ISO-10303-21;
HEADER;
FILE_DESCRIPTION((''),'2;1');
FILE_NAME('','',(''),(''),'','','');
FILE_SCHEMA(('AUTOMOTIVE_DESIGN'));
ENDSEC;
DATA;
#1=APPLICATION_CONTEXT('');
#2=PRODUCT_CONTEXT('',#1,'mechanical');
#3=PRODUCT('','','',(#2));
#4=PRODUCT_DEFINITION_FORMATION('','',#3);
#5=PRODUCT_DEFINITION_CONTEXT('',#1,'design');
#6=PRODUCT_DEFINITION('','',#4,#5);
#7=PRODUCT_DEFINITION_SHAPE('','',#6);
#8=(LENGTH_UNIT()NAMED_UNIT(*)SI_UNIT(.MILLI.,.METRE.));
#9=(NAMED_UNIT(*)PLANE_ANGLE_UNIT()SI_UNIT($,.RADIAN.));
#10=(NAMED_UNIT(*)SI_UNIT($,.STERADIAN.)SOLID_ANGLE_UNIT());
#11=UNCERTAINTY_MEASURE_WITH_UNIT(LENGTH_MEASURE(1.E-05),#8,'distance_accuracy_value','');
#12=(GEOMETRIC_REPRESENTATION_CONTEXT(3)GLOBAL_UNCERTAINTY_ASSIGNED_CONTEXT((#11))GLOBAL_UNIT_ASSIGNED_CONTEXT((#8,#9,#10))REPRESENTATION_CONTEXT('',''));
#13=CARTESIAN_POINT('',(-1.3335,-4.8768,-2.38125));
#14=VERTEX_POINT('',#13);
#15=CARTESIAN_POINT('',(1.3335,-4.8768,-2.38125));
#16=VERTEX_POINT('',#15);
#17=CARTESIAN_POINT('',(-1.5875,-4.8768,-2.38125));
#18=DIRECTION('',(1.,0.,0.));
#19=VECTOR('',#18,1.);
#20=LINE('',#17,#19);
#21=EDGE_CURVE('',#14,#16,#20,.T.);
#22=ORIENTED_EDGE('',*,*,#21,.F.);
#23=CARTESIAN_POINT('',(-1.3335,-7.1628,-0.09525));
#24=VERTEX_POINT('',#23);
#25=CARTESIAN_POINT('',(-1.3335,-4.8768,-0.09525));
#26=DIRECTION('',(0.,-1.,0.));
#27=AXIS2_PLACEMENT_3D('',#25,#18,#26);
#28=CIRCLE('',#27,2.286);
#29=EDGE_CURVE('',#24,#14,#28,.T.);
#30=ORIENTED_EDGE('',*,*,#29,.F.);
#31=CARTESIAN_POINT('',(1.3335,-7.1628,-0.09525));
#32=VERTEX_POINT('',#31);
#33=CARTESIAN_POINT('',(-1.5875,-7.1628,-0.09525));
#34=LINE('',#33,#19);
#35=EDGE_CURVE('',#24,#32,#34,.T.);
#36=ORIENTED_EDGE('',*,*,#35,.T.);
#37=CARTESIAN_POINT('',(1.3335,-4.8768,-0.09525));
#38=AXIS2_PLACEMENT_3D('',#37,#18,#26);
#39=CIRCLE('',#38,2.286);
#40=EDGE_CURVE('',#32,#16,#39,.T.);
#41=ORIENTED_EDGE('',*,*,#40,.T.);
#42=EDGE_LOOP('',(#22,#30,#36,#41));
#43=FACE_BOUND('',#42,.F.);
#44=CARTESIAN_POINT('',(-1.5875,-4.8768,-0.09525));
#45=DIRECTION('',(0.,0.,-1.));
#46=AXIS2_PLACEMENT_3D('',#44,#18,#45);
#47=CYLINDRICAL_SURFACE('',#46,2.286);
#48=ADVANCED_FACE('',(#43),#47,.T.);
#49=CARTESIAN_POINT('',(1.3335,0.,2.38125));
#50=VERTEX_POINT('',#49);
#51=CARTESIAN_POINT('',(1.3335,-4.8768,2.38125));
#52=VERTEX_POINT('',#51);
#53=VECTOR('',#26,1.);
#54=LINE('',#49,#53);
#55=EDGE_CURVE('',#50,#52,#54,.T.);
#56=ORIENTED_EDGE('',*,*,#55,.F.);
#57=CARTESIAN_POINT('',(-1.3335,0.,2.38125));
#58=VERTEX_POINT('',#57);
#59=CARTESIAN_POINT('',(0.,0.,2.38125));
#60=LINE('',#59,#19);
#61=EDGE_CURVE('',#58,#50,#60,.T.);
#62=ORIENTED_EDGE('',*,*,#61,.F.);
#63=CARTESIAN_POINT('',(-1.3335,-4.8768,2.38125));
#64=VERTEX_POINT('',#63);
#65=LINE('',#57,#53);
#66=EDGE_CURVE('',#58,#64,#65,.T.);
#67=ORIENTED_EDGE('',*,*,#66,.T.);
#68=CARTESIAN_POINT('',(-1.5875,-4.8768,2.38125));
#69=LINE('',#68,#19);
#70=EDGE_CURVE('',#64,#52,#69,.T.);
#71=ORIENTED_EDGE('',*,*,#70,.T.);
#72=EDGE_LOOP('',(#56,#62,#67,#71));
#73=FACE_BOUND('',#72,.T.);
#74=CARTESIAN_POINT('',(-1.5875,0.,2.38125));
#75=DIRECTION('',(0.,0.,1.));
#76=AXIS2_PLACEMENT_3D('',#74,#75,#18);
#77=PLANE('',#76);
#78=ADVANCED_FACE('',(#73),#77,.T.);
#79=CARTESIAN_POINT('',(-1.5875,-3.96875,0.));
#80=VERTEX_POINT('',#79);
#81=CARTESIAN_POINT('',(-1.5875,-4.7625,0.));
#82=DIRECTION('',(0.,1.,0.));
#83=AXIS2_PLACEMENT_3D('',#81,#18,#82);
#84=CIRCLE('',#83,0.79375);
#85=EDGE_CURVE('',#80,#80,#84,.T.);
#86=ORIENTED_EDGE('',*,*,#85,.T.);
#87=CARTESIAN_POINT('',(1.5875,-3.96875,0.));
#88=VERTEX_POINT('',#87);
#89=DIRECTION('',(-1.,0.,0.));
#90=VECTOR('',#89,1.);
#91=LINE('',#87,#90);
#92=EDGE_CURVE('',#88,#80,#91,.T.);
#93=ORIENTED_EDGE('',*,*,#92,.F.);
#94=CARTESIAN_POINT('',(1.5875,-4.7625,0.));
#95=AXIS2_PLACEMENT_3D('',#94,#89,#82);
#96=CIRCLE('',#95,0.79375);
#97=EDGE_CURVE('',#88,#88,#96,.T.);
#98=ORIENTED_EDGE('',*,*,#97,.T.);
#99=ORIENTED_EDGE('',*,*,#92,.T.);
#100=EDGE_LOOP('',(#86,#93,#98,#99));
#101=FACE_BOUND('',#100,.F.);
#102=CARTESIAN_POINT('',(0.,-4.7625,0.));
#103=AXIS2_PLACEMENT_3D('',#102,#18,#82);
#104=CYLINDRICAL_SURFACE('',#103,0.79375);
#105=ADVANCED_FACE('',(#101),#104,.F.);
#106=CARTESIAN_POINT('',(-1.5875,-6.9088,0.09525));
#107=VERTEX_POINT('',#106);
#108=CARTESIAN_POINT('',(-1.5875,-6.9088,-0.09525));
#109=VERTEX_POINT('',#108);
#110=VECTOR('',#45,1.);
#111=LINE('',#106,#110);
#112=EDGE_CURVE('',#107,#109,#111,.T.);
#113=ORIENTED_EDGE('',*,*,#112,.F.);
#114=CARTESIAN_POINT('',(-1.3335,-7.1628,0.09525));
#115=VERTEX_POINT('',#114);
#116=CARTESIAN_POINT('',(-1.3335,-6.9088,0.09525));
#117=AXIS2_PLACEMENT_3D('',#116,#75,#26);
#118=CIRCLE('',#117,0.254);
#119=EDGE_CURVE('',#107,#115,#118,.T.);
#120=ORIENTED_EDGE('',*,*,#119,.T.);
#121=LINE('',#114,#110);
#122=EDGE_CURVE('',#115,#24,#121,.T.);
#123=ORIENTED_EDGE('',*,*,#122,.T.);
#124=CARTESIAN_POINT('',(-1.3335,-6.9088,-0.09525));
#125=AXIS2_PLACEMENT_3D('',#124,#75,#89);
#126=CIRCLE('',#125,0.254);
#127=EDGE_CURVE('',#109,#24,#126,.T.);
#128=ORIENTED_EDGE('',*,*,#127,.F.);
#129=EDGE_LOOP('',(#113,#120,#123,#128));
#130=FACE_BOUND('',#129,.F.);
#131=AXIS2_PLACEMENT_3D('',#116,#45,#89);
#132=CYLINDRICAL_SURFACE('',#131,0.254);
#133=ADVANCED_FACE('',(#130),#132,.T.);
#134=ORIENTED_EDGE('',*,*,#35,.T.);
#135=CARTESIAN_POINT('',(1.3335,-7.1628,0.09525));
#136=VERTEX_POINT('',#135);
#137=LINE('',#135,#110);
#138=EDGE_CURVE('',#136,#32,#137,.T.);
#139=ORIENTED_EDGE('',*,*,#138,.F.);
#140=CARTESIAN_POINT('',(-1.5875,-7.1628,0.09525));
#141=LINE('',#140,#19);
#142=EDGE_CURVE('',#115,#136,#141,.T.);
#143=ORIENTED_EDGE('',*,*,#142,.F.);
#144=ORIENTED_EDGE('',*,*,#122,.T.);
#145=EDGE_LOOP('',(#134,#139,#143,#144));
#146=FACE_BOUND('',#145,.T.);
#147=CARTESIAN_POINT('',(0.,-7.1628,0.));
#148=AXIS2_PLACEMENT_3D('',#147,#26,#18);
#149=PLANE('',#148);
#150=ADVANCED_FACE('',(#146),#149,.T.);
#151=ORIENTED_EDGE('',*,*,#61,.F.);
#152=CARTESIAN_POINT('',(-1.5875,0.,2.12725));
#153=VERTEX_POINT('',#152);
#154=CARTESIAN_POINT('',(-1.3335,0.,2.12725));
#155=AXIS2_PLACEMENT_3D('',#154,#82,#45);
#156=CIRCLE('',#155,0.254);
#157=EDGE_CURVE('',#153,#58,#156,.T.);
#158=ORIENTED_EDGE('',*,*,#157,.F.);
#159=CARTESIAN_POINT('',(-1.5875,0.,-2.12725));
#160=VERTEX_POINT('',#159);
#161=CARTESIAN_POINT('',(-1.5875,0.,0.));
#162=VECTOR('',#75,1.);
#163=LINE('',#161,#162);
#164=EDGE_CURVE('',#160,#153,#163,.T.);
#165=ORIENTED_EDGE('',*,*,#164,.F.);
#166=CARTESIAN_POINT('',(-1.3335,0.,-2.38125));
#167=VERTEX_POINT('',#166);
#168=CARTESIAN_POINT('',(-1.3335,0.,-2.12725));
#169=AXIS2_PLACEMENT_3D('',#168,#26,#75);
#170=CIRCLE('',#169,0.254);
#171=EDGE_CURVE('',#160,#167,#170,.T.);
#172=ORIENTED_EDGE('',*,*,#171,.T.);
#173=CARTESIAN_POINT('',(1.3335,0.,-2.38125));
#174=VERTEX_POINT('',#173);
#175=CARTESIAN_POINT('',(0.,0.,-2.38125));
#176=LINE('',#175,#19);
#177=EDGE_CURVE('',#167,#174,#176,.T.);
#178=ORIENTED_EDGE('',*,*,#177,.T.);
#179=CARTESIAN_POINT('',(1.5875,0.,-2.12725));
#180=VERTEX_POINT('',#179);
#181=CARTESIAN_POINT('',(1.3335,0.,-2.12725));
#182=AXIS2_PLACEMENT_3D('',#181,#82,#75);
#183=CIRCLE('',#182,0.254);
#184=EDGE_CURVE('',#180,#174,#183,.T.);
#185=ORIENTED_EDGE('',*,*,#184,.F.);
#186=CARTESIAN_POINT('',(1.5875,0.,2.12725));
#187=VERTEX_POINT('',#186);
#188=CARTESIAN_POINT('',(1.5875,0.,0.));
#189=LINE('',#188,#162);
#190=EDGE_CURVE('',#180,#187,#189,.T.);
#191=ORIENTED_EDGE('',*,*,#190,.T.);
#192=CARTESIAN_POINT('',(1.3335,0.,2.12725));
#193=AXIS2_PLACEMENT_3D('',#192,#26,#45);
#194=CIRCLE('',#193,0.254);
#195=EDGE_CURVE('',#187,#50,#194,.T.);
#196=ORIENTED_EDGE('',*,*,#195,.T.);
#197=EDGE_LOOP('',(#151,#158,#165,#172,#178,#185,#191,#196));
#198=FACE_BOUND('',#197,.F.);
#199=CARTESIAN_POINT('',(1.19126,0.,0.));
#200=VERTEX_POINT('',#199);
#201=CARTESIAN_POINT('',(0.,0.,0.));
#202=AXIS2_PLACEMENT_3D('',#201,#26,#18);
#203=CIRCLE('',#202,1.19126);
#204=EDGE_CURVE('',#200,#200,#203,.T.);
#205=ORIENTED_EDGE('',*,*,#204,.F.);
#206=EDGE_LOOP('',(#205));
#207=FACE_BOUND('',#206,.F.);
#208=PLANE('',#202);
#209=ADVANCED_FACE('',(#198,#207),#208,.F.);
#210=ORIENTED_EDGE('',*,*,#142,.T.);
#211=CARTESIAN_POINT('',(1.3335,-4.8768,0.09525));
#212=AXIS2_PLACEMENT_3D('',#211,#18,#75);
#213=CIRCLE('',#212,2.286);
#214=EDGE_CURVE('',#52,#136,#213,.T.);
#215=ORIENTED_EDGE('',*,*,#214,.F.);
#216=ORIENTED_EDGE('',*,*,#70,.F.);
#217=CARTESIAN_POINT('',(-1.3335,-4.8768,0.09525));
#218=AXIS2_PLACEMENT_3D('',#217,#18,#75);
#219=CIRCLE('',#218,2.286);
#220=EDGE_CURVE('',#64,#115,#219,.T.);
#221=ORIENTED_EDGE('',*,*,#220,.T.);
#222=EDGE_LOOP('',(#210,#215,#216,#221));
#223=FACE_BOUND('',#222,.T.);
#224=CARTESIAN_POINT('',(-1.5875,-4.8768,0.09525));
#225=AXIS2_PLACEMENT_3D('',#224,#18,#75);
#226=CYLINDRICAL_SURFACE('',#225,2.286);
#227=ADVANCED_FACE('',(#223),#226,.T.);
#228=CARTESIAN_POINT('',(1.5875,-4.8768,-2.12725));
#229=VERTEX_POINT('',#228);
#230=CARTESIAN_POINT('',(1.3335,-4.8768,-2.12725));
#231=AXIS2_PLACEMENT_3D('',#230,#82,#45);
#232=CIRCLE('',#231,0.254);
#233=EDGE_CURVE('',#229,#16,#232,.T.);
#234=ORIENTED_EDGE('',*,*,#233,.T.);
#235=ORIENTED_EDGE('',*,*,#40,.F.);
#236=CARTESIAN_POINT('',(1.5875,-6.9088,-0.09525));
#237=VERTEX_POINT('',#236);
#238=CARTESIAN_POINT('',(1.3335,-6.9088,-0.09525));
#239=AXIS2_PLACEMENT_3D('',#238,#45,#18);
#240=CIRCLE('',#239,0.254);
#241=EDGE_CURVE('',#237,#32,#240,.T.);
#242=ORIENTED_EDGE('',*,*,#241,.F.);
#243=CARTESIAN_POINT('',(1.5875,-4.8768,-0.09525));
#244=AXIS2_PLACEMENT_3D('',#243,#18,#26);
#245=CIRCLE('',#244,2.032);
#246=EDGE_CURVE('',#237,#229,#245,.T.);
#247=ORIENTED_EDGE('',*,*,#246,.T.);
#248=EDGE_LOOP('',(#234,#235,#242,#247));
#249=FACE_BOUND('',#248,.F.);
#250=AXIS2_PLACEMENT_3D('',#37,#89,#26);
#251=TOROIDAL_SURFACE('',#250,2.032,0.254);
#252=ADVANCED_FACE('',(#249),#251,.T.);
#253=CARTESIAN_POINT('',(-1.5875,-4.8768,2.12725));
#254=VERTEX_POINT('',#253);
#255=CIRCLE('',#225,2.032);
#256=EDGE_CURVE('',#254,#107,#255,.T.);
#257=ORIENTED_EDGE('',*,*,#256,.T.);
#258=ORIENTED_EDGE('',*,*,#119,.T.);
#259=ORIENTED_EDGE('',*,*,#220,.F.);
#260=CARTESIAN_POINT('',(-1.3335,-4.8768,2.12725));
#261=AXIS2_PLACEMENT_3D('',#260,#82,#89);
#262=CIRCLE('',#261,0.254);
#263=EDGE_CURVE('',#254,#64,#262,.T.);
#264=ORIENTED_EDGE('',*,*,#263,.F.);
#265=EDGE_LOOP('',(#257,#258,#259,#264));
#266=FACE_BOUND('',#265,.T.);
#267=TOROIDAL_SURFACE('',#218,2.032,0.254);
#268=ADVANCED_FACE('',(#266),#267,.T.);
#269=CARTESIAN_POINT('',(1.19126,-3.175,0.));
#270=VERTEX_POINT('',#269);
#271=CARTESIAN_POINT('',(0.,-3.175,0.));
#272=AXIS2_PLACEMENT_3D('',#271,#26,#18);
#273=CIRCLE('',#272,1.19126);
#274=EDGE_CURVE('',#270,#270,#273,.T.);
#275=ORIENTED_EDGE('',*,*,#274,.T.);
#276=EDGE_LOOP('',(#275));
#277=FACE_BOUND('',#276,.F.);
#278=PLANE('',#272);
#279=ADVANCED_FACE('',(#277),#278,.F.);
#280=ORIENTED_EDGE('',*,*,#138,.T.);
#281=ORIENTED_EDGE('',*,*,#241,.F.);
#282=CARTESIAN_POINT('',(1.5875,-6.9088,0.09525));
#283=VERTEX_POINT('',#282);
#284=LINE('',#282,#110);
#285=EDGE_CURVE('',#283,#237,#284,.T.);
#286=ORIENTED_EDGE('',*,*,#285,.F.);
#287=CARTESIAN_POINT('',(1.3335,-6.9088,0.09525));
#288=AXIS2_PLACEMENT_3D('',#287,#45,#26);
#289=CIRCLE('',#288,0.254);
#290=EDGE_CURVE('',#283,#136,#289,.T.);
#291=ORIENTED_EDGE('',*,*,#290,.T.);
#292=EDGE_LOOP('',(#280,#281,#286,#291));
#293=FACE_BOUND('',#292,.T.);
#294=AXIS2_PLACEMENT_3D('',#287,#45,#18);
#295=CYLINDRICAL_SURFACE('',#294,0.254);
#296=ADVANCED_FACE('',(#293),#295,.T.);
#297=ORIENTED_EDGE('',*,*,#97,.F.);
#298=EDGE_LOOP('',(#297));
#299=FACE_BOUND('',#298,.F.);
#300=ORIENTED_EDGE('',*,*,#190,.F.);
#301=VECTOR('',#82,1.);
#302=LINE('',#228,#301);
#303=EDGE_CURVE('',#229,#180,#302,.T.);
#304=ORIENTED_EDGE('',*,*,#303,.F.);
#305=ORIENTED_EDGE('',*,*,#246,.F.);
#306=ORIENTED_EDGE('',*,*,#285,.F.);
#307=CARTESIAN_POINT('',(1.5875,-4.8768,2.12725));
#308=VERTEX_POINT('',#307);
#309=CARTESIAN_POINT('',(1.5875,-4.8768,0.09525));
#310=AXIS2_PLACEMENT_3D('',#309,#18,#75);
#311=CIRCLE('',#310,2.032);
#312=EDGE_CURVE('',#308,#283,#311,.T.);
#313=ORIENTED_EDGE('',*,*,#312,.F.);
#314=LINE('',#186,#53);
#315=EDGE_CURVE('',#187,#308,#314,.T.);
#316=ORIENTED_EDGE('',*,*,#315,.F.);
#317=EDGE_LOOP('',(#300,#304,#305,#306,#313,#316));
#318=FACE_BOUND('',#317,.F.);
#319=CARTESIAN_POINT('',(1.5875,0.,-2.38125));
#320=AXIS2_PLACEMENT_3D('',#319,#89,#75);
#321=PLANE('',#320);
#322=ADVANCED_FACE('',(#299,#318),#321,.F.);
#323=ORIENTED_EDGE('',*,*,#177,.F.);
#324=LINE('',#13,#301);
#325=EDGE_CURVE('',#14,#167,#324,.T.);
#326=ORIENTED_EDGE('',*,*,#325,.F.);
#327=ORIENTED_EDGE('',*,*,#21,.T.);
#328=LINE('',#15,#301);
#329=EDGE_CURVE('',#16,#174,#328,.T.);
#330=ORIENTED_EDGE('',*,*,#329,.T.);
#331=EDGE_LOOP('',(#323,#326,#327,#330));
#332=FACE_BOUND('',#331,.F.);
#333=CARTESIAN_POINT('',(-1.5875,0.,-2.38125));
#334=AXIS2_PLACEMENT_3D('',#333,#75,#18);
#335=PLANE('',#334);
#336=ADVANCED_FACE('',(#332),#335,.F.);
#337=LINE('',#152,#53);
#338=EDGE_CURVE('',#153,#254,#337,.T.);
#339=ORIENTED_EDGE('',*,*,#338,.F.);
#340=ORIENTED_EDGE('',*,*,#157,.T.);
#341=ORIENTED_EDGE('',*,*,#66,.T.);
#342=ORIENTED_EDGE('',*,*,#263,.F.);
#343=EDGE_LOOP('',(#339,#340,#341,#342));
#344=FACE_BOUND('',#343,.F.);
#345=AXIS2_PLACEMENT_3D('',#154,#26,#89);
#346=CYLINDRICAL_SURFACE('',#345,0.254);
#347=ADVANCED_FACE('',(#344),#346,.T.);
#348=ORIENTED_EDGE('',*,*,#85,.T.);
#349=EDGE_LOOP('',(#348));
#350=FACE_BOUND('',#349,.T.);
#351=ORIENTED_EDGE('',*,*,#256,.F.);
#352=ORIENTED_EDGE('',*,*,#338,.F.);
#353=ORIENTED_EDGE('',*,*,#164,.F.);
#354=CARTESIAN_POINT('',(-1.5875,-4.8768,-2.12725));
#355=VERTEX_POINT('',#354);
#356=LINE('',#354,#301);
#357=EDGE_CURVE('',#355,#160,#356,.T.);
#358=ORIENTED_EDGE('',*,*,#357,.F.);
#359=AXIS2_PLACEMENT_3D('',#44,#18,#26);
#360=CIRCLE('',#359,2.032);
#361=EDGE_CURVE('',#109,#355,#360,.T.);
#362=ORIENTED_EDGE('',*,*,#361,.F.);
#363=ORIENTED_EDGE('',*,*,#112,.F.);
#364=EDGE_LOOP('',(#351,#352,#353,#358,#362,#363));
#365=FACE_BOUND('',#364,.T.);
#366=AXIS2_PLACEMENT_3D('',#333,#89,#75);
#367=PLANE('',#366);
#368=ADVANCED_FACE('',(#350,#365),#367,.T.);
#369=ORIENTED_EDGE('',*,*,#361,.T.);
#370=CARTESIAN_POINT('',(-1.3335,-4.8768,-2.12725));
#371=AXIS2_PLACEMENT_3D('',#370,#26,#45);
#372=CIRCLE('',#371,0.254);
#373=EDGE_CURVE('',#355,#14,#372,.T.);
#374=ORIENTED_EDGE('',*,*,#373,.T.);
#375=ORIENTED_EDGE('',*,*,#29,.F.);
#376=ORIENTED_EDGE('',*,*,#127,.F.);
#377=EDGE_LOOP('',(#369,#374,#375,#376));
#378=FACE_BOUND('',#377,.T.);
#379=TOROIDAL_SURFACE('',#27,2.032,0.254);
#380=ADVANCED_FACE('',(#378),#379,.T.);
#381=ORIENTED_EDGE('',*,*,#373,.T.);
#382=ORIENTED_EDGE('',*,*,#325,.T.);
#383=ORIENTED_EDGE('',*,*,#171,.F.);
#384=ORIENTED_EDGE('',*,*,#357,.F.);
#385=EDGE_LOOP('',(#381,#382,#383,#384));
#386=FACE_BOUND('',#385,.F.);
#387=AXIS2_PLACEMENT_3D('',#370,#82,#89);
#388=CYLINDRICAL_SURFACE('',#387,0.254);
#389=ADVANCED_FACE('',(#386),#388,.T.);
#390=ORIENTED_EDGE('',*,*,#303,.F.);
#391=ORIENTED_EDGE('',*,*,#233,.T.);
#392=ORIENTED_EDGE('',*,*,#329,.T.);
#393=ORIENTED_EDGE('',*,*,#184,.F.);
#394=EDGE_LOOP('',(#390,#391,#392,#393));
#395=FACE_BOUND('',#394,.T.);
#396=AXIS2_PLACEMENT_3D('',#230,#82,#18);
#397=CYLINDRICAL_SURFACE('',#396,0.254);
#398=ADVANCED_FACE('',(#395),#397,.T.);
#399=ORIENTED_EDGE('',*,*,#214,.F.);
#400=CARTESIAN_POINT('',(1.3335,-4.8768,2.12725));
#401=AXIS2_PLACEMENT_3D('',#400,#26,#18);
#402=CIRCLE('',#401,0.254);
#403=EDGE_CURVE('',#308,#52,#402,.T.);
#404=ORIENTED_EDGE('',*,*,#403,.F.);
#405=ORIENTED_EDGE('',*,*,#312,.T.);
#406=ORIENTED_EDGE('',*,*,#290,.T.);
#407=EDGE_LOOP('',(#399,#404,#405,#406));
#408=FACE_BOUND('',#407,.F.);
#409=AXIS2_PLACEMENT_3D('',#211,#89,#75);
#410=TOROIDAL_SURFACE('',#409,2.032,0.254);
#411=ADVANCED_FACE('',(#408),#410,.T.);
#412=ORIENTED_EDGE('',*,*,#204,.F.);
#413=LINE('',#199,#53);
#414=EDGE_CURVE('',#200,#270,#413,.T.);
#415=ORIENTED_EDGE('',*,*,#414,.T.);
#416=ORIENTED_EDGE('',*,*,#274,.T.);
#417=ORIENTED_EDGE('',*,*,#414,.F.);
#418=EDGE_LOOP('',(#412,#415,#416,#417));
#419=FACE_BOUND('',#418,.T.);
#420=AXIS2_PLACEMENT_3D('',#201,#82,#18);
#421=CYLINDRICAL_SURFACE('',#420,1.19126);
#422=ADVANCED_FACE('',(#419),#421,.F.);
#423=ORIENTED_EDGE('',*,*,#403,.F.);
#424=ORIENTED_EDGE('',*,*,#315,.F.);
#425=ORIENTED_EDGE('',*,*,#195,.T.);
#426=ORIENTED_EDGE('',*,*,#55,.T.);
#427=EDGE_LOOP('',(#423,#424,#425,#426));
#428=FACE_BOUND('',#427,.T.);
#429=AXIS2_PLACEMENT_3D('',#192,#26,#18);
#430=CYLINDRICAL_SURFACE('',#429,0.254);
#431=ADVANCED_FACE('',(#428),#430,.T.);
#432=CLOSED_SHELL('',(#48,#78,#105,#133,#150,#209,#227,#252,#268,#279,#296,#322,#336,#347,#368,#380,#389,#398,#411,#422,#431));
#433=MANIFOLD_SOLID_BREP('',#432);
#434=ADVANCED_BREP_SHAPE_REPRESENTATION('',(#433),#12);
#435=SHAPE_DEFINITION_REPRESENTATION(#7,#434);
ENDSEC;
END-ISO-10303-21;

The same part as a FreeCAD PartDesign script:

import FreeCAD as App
import Part
import Sketcher

V = App.Vector
Q = App.Units.Quantity


def edges_at(feature, points):
    """Names of the edges that pass closest to the given points."""
    edges = feature.Shape.Edges
    near = lambda p: min(range(len(edges)), key=lambda i: edges[i].distToShape(Part.Vertex(*p))[0])
    return sorted({f"Edge{near(p) + 1}" for p in points})

doc = App.newDocument("Part")
params = doc.addObject("Spreadsheet::Sheet", "Params")
for row, (alias, value) in enumerate([
    ("sketch1_width", "0.125 in"),
    ("sketch1_height", "0.1875 in"),
    ("pad1_length", "0.282 in"),
    ("fillet_radius", "0.09 in"),
    ("pocket1_length", "0.125 in"),
    ("sketch3_diameter", "0.0625 in"),
    ("fillet2_radius", "0.01 in"),
], start=1):
    params.set(f"A{row}", alias)
    params.set(f"B{row}", "=" + value)
    params.setAlias(f"B{row}", alias)

body = doc.addObject("PartDesign::Body", "Body")

sketch1 = doc.addObject("Sketcher::SketchObject", "Sketch")
body.addObject(sketch1)
sketch1.AttachmentSupport = (doc.XZ_Plane, [""])
sketch1.MapMode = "FlatFace"
sketch1.addGeometry([
    Part.LineSegment(V(-1.5875, 2.38125, 0), V(-1.5875, -2.38125, 0)),
    Part.LineSegment(V(-1.5875, -2.38125, 0), V(1.5875, -2.38125, 0)),
    Part.LineSegment(V(1.5875, -2.38125, 0), V(1.5875, 2.38125, 0)),
    Part.LineSegment(V(1.5875, 2.38125, 0), V(-1.5875, 2.38125, 0)),
], False)
sketch1.addConstraint([
    Sketcher.Constraint("Coincident", 0, 2, 1, 1),
    Sketcher.Constraint("Coincident", 1, 2, 2, 1),
    Sketcher.Constraint("Coincident", 2, 2, 3, 1),
    Sketcher.Constraint("Coincident", 3, 2, 0, 1),
    Sketcher.Constraint("Vertical", 0),
    Sketcher.Constraint("Horizontal", 1),
    Sketcher.Constraint("Vertical", 2),
    Sketcher.Constraint("Horizontal", 3),
    Sketcher.Constraint("Symmetric", 0, 2, 2, 2, -1, 1),
    Sketcher.Constraint("DistanceX", 1, 1, 1, 2, Q("0.125 in")),
    Sketcher.Constraint("DistanceY", 0, 2, 0, 1, Q("0.1875 in")),
])
sketch1.setExpression("Constraints[9]", "Params.sketch1_width")
sketch1.setExpression("Constraints[10]", "Params.sketch1_height")
pad1 = doc.addObject("PartDesign::Pad", "Pad")
body.addObject(pad1)
pad1.Profile = sketch1
pad1.setExpression("Length", "Params.pad1_length")
doc.recompute()

fillet = doc.addObject("PartDesign::Fillet", "Fillet")
body.addObject(fillet)
fillet.Base = (pad1, edges_at(pad1, [(0, -7.163, 2.381), (0, -7.163, -2.381)]))
fillet.setExpression("Radius", "Params.fillet_radius")

sketch2 = doc.addObject("Sketcher::SketchObject", "Sketch001")
body.addObject(sketch2)
sketch2.AttachmentSupport = (doc.XZ_Plane, [""])
sketch2.MapMode = "FlatFace"
sketch2.addGeometry(Part.Circle(V(0, 0, 0), V(0, 0, 1), 1.19126), False)
sketch2.addConstraint([
    Sketcher.Constraint("Coincident", 0, 3, -1, 1),
    Sketcher.Constraint("Diameter", 0, Q("0.0938 in")),
])
pocket1 = doc.addObject("PartDesign::Pocket", "Pocket")
body.addObject(pocket1)
pocket1.Profile = sketch2
pocket1.setExpression("Length", "Params.pocket1_length")
pocket1.Reversed = True

sketch3 = doc.addObject("Sketcher::SketchObject", "Sketch002")
body.addObject(sketch3)
sketch3.AttachmentSupport = (doc.YZ_Plane, [""])
sketch3.MapMode = "FlatFace"
sketch3.addGeometry(Part.Circle(V(-4.7625, 0, 0), V(0, 0, 1), 0.79375), False)
sketch3.addConstraint([
    Sketcher.Constraint("PointOnObject", 0, 3, -1),
    Sketcher.Constraint("Diameter", 0, Q("0.0625 in")),
    Sketcher.Constraint("DistanceX", 0, 3, -1, 1, Q("0.1875 in")),
])
sketch3.setExpression("Constraints[1]", "Params.sketch3_diameter")
pocket2 = doc.addObject("PartDesign::Pocket", "Pocket001")
body.addObject(pocket2)
pocket2.Profile = sketch3
pocket2.Type = "ThroughAll"
pocket2.Midplane = True
doc.recompute()

fillet2 = doc.addObject("PartDesign::Fillet", "Fillet001")
body.addObject(fillet2)
fillet2.Base = (pocket2, edges_at(pocket2, [
    (1.587, -2.438, 2.381),
    (1.587, -6.493, 1.712),
    (-1.587, -6.493, 1.712),
    (-1.587, -6.493, -1.712),
]))
fillet2.setExpression("Radius", "Params.fillet2_radius")

doc.recompute()
